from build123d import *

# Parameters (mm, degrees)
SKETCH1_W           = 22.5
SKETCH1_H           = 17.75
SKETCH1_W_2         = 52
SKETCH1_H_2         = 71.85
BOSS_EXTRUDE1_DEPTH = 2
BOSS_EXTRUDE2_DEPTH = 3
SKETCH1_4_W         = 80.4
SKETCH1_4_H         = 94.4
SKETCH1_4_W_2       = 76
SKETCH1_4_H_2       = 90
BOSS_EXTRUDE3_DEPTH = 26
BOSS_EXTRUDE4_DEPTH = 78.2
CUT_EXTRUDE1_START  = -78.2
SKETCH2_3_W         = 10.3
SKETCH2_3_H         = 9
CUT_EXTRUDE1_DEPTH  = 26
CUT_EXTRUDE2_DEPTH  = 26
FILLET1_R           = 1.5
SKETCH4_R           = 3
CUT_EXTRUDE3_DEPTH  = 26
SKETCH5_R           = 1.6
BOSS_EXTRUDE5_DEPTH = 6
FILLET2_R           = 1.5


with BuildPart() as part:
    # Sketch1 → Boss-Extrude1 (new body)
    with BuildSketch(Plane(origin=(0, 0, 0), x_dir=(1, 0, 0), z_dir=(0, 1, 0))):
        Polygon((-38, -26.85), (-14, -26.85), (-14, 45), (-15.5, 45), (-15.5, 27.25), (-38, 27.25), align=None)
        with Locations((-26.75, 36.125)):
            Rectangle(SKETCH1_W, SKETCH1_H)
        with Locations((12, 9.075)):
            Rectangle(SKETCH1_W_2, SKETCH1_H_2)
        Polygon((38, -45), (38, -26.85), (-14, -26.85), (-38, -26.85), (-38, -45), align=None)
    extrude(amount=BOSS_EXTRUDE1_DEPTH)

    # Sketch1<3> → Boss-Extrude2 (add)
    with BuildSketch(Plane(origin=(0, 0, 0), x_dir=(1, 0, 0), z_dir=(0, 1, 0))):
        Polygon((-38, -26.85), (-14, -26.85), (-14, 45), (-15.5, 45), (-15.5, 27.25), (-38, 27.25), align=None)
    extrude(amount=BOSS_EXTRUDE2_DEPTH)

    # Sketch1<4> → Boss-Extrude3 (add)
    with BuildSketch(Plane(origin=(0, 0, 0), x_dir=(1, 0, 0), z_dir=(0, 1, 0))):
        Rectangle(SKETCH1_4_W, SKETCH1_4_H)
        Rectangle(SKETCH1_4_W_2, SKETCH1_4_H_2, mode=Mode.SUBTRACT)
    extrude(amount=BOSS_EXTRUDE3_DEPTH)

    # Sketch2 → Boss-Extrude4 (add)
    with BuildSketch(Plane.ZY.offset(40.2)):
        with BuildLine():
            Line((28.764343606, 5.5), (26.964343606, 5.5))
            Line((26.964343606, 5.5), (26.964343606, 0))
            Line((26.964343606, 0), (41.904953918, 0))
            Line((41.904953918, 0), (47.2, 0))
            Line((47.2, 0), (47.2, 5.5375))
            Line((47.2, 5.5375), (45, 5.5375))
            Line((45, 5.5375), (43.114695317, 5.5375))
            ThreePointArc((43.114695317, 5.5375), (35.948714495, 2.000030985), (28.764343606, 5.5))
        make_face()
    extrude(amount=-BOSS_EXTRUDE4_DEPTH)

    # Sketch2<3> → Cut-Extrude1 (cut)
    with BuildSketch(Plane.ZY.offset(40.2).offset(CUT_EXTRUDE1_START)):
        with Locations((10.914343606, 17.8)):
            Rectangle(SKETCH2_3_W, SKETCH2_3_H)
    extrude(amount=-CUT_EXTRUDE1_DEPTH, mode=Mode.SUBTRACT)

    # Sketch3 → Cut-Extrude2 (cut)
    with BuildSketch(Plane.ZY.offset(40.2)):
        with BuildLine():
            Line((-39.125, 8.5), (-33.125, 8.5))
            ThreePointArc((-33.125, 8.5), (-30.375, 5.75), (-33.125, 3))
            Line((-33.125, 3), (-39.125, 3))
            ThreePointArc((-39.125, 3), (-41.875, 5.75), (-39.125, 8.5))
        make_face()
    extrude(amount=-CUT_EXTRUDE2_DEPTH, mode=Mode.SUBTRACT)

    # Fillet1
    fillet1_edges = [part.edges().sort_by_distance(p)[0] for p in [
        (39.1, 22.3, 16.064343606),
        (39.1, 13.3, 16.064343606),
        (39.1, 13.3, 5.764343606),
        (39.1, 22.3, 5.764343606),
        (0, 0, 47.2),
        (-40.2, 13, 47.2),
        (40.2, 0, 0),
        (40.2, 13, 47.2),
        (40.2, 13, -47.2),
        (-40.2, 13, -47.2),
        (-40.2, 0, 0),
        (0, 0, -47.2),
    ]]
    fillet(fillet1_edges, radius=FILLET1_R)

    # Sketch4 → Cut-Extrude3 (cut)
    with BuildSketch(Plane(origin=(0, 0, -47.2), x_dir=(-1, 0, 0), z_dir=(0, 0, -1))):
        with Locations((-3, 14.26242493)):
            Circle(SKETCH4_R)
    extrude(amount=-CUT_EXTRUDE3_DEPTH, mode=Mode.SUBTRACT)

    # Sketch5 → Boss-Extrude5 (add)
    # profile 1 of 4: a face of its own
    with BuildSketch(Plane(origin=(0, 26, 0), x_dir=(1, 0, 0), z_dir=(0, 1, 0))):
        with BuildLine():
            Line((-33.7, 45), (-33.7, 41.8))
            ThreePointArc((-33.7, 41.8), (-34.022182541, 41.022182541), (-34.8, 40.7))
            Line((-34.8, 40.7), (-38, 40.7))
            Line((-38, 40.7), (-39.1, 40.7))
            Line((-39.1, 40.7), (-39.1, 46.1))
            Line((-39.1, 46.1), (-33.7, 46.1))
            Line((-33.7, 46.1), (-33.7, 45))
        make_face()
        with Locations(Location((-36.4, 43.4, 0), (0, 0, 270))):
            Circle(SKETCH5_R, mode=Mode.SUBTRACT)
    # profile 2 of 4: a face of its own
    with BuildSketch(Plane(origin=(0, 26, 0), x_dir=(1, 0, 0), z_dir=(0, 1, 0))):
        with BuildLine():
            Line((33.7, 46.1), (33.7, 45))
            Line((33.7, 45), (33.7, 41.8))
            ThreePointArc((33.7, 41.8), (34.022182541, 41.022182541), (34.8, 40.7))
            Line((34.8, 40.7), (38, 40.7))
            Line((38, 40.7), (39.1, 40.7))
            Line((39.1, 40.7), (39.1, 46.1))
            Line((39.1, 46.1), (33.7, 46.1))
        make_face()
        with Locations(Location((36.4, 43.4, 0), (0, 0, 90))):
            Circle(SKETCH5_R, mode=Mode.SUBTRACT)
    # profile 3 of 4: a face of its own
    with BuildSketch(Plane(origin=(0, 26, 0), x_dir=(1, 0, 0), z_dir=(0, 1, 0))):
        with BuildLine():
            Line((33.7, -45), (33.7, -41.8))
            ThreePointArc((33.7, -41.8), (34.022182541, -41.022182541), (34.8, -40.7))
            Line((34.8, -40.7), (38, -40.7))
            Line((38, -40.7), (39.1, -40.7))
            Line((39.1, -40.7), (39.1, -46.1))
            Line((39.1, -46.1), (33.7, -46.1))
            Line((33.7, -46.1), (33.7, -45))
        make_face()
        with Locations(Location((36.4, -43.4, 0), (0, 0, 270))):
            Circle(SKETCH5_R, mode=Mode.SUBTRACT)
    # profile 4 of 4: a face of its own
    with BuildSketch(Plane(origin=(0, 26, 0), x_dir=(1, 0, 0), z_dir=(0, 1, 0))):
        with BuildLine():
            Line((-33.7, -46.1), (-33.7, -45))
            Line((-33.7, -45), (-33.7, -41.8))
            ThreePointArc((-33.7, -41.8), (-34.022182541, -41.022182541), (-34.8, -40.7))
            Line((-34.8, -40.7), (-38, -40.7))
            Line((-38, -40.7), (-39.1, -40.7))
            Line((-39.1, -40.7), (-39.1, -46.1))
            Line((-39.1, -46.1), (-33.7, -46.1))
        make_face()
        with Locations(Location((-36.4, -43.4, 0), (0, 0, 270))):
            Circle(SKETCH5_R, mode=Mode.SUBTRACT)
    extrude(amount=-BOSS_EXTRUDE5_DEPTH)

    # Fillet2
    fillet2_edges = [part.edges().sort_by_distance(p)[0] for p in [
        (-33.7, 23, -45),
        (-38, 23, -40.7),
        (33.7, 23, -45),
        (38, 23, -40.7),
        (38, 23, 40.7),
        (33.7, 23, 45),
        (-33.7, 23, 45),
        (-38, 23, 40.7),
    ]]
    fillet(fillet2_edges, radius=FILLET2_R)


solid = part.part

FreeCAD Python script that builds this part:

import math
import FreeCAD as App
import Part
import Sketcher
Q = App.Units.Quantity


def edges_at(feature, points):
    """Names of the edges that pass closest to the given points."""
    edges = feature.Shape.Edges
    near = lambda p: min(range(len(edges)), key=lambda i: edges[i].distToShape(Part.Vertex(*p))[0])
    return sorted({f"Edge{near(p) + 1}" for p in points})

doc = App.newDocument("Part")
body = doc.addObject("PartDesign::Body", "Body")

sketch1 = body.newObject("Sketcher::SketchObject", "Sketch")
sketch1.AttachmentSupport = (doc.getObject("XZ_Plane"), [""])
sketch1.MapMode = "FlatFace"
sketch1.addGeometry(Part.LineSegment(App.Vector(38, -45, 0), App.Vector(-38, -45, 0)), False)
sketch1.addGeometry(Part.LineSegment(App.Vector(-38, -45, 0), App.Vector(-38, 45, 0)), False)
sketch1.addGeometry(Part.LineSegment(App.Vector(-38, 45, 0), App.Vector(38, 45, 0)), False)
sketch1.addGeometry(Part.LineSegment(App.Vector(38, 45, 0), App.Vector(38, -45, 0)), False)
sketch1.addConstraint(Sketcher.Constraint("Coincident", 0, 2, 1, 1))
sketch1.addConstraint(Sketcher.Constraint("Coincident", 1, 2, 2, 1))
sketch1.addConstraint(Sketcher.Constraint("Coincident", 2, 2, 3, 1))
sketch1.addConstraint(Sketcher.Constraint("Coincident", 3, 2, 0, 1))
sketch1.addConstraint(Sketcher.Constraint("Horizontal", 0))
sketch1.addConstraint(Sketcher.Constraint("Vertical", 1))
sketch1.addConstraint(Sketcher.Constraint("Horizontal", 2))
sketch1.addConstraint(Sketcher.Constraint("Vertical", 3))
sketch1.addConstraint(Sketcher.Constraint("Symmetric", 0, 2, 2, 2, -1, 1))
sketch1.addConstraint(Sketcher.Constraint("DistanceX", 0, 2, 0, 1, Q("76 mm")))
sketch1.addConstraint(Sketcher.Constraint("DistanceY", 1, 1, 1, 2, Q("90 mm")))
pad1 = body.newObject("PartDesign::Pad", "Pad")
pad1.Profile = sketch1
pad1.Length = 2
pad1.Reversed = True

sketch2 = body.newObject("Sketcher::SketchObject", "Sketch001")
sketch2.AttachmentSupport = (doc.getObject("XZ_Plane"), [""])
sketch2.MapMode = "FlatFace"
sketch2.addGeometry(Part.LineSegment(App.Vector(-38, 26.9, 0), App.Vector(-14, 26.9, 0)), False)
sketch2.addGeometry(Part.LineSegment(App.Vector(-14, 26.9, 0), App.Vector(-14, -45, 0)), False)
sketch2.addGeometry(Part.LineSegment(App.Vector(-14, -45, 0), App.Vector(-15.5, -45, 0)), False)
sketch2.addGeometry(Part.LineSegment(App.Vector(-15.5, -45, 0), App.Vector(-15.5, -27.2, 0)), False)
sketch2.addGeometry(Part.LineSegment(App.Vector(-15.5, -27.2, 0), App.Vector(-38, -27.2, 0)), False)
sketch2.addGeometry(Part.LineSegment(App.Vector(-38, -27.2, 0), App.Vector(-38, 26.9, 0)), False)
sketch2.addConstraint(Sketcher.Constraint("Coincident", 0, 2, 1, 1))
sketch2.addConstraint(Sketcher.Constraint("Coincident", 1, 2, 2, 1))
sketch2.addConstraint(Sketcher.Constraint("Coincident", 2, 2, 3, 1))
sketch2.addConstraint(Sketcher.Constraint("Coincident", 3, 2, 4, 1))
sketch2.addConstraint(Sketcher.Constraint("Coincident", 4, 2, 5, 1))
sketch2.addConstraint(Sketcher.Constraint("Coincident", 5, 2, 0, 1))
sketch2.addConstraint(Sketcher.Constraint("Horizontal", 0))
sketch2.addConstraint(Sketcher.Constraint("Vertical", 1))
sketch2.addConstraint(Sketcher.Constraint("Horizontal", 2))
sketch2.addConstraint(Sketcher.Constraint("Vertical", 3))
sketch2.addConstraint(Sketcher.Constraint("Horizontal", 4))
sketch2.addConstraint(Sketcher.Constraint("Vertical", 5))
sketch2.addConstraint(Sketcher.Constraint("DistanceX", 0, 1, 0, 2, Q("24 mm")))
sketch2.addConstraint(Sketcher.Constraint("DistanceX", 2, 2, 2, 1, Q("1.5 mm")))
sketch2.addConstraint(Sketcher.Constraint("DistanceY", 5, 1, 5, 2, Q("54.1 mm")))
sketch2.addConstraint(Sketcher.Constraint("DistanceX", 0, 2, -1, 1, Q("14 mm")))
sketch2.addConstraint(Sketcher.Constraint("DistanceY", 1, 2, -1, 1, Q("45 mm")))
sketch2.addConstraint(Sketcher.Constraint("DistanceY", 1, 2, 1, 1, Q("71.85 mm")))
pad2 = body.newObject("PartDesign::Pad", "Pad001")
pad2.Profile = sketch2
pad2.Length = 3
pad2.Reversed = True

sketch3 = body.newObject("Sketcher::SketchObject", "Sketch002")
sketch3.AttachmentSupport = (doc.getObject("XZ_Plane"), [""])
sketch3.MapMode = "FlatFace"
sketch3.addGeometry(Part.LineSegment(App.Vector(-40, -47, 0), App.Vector(-40, 47, 0)), False)
sketch3.addGeometry(Part.LineSegment(App.Vector(-40, 47, 0), App.Vector(40, 47, 0)), False)
sketch3.addGeometry(Part.LineSegment(App.Vector(40, 47, 0), App.Vector(40, -47, 0)), False)
sketch3.addGeometry(Part.LineSegment(App.Vector(40, -47, 0), App.Vector(-40, -47, 0)), False)
sketch3.addGeometry(Part.LineSegment(App.Vector(38, 45, 0), App.Vector(-38, 45, 0)), False)
sketch3.addGeometry(Part.LineSegment(App.Vector(-38, 45, 0), App.Vector(-38, -45, 0)), False)
sketch3.addGeometry(Part.LineSegment(App.Vector(-38, -45, 0), App.Vector(38, -45, 0)), False)
sketch3.addGeometry(Part.LineSegment(App.Vector(38, -45, 0), App.Vector(38, 45, 0)), False)
sketch3.addConstraint(Sketcher.Constraint("Coincident", 0, 2, 1, 1))
sketch3.addConstraint(Sketcher.Constraint("Coincident", 1, 2, 2, 1))
sketch3.addConstraint(Sketcher.Constraint("Coincident", 2, 2, 3, 1))
sketch3.addConstraint(Sketcher.Constraint("Coincident", 3, 2, 0, 1))
sketch3.addConstraint(Sketcher.Constraint("Coincident", 4, 2, 5, 1))
sketch3.addConstraint(Sketcher.Constraint("Coincident", 5, 2, 6, 1))
sketch3.addConstraint(Sketcher.Constraint("Coincident", 6, 2, 7, 1))
sketch3.addConstraint(Sketcher.Constraint("Coincident", 7, 2, 4, 1))
sketch3.addConstraint(Sketcher.Constraint("Vertical", 0))
sketch3.addConstraint(Sketcher.Constraint("Horizontal", 1))
sketch3.addConstraint(Sketcher.Constraint("Vertical", 2))
sketch3.addConstraint(Sketcher.Constraint("Horizontal", 3))
sketch3.addConstraint(Sketcher.Constraint("Horizontal", 4))
sketch3.addConstraint(Sketcher.Constraint("Vertical", 5))
sketch3.addConstraint(Sketcher.Constraint("Horizontal", 6))
sketch3.addConstraint(Sketcher.Constraint("Vertical", 7))
sketch3.addConstraint(Sketcher.Constraint("Symmetric", 0, 2, 2, 2, -1, 1))
sketch3.addConstraint(Sketcher.Constraint("Symmetric", 4, 2, 6, 2, -1, 1))
sketch3.addConstraint(Sketcher.Constraint("DistanceX", 4, 2, 4, 1, Q("76 mm")))
sketch3.addConstraint(Sketcher.Constraint("DistanceY", 5, 2, 5, 1, Q("90 mm")))
sketch3.addConstraint(Sketcher.Constraint("DistanceX", 1, 1, 1, 2, Q("80.4 mm")))
sketch3.addConstraint(Sketcher.Constraint("DistanceY", 0, 1, 0, 2, Q("94.4 mm")))
pad3 = body.newObject("PartDesign::Pad", "Pad002")
pad3.Profile = sketch3
pad3.Length = 26
pad3.Reversed = True

sketch4 = body.newObject("Sketcher::SketchObject", "Sketch003")
sketch4.AttachmentSupport = (doc.getObject("YZ_Plane"), [""])
sketch4.MapMode = "FlatFace"
sketch4.AttachmentOffset = App.Placement(App.Vector(0, 0, -40.2), App.Rotation())
sketch4.addGeometry(Part.LineSegment(App.Vector(5.5, 28.8, 0), App.Vector(5.5, 27, 0)), False)
sketch4.addGeometry(Part.LineSegment(App.Vector(5.5, 27, 0), App.Vector(0, 27, 0)), False)
sketch4.addGeometry(Part.LineSegment(App.Vector(0, 27, 0), App.Vector(0, 47.2, 0)), False)
sketch4.addGeometry(Part.LineSegment(App.Vector(0, 47.2, 0), App.Vector(5.5, 47.2, 0)), False)
sketch4.addGeometry(Part.LineSegment(App.Vector(5.5, 47.2, 0), App.Vector(5.5, 43.1, 0)), False)
sketch4.addGeometry(Part.ArcOfCircle(Part.Circle(App.Vector(11.1, 35.9, 0), App.Vector(0, 0, 1), 9.1), math.radians(128), math.radians(232)), False)
sketch4.addConstraint(Sketcher.Constraint("Coincident", 0, 2, 1, 1))
sketch4.addConstraint(Sketcher.Constraint("Coincident", 1, 2, 2, 1))
sketch4.addConstraint(Sketcher.Constraint("Coincident", 2, 2, 3, 1))
sketch4.addConstraint(Sketcher.Constraint("Coincident", 3, 2, 4, 1))
sketch4.addConstraint(Sketcher.Constraint("Coincident", 4, 2, 5, 1))
sketch4.addConstraint(Sketcher.Constraint("Coincident", 5, 2, 0, 1))
sketch4.addConstraint(Sketcher.Constraint("Vertical", 0))
sketch4.addConstraint(Sketcher.Constraint("Horizontal", 1))
sketch4.addConstraint(Sketcher.Constraint("Vertical", 2))
sketch4.addConstraint(Sketcher.Constraint("Horizontal", 3))
sketch4.addConstraint(Sketcher.Constraint("Vertical", 4))
sketch4.addConstraint(Sketcher.Constraint("PointOnObject", 1, 2, -2))
sketch4.addConstraint(Sketcher.Constraint("DistanceX", 1, 2, 1, 1, Q("5.5 mm")))
sketch4.addConstraint(Sketcher.Constraint("DistanceY", 0, 2, 0, 1, Q("1.8 mm")))
sketch4.addConstraint(Sketcher.Constraint("Radius", 5, Q("9.075 mm")))
sketch4.addConstraint(Sketcher.Constraint("DistanceY", -1, 1, 2, 2, Q("47.2 mm")))
sketch4.addConstraint(Sketcher.Constraint("DistanceX", 3, 1, 3, 2, Q("5.5375 mm")))
sketch4.addConstraint(Sketcher.Constraint("DistanceX", -1, 1, 5, 3, Q("11.075 mm")))
sketch4.addConstraint(Sketcher.Constraint("DistanceY", -1, 1, 5, 3, Q("35.925 mm")))
pad4 = body.newObject("PartDesign::Pad", "Pad003")
pad4.Profile = sketch4
pad4.Length = 78.2

sketch5 = body.newObject("Sketcher::SketchObject", "Sketch004")
sketch5.AttachmentSupport = (doc.getObject("YZ_Plane"), [""])
sketch5.MapMode = "FlatFace"
sketch5.AttachmentOffset = App.Placement(App.Vector(0, 0, 38), App.Rotation())
sketch5.addGeometry(Part.LineSegment(App.Vector(22, 6, 0), App.Vector(13, 6, 0)), False)
sketch5.addGeometry(Part.LineSegment(App.Vector(13, 6, 0), App.Vector(13, 16, 0)), False)
sketch5.addGeometry(Part.LineSegment(App.Vector(13, 16, 0), App.Vector(22, 16, 0)), False)
sketch5.addGeometry(Part.LineSegment(App.Vector(22, 16, 0), App.Vector(22, 6, 0)), False)
sketch5.addConstraint(Sketcher.Constraint("Coincident", 0, 2, 1, 1))
sketch5.addConstraint(Sketcher.Constraint("Coincident", 1, 2, 2, 1))
sketch5.addConstraint(Sketcher.Constraint("Coincident", 2, 2, 3, 1))
sketch5.addConstraint(Sketcher.Constraint("Coincident", 3, 2, 0, 1))
sketch5.addConstraint(Sketcher.Constraint("Horizontal", 0))
sketch5.addConstraint(Sketcher.Constraint("Vertical", 1))
sketch5.addConstraint(Sketcher.Constraint("Horizontal", 2))
sketch5.addConstraint(Sketcher.Constraint("Vertical", 3))
sketch5.addConstraint(Sketcher.Constraint("DistanceX", 0, 2, 0, 1, Q("9 mm")))
sketch5.addConstraint(Sketcher.Constraint("DistanceY", 1, 1, 1, 2, Q("10.3 mm")))
sketch5.addConstraint(Sketcher.Constraint("DistanceX", -1, 1, 0, 2, Q("13.3 mm")))
sketch5.addConstraint(Sketcher.Constraint("DistanceY", -1, 1, 0, 2, Q("5.764344 mm")))
pocket1 = body.newObject("PartDesign::Pocket", "Pocket")
pocket1.Profile = sketch5
pocket1.Length = 26
pocket1.Reversed = True

sketch6 = body.newObject("Sketcher::SketchObject", "Sketch005")
sketch6.AttachmentSupport = (doc.getObject("YZ_Plane"), [""])
sketch6.MapMode = "FlatFace"
sketch6.AttachmentOffset = App.Placement(App.Vector(0, 0, -40.2), App.Rotation())
sketch6.addGeometry(Part.LineSegment(App.Vector(8.5, -33.1, 0), App.Vector(8.5, -39.1, 0)), False)
sketch6.addGeometry(Part.ArcOfCircle(Part.Circle(App.Vector(5.8, -39.1, 0), App.Vector(0, 0, 1), 2.8), math.radians(180), math.radians(360)), False)
sketch6.addGeometry(Part.LineSegment(App.Vector(3, -39.1, 0), App.Vector(3, -33.1, 0)), False)
sketch6.addGeometry(Part.ArcOfCircle(Part.Circle(App.Vector(5.8, -33.1, 0), App.Vector(0, 0, 1), 2.8), math.radians(0), math.radians(180)), False)
sketch6.addConstraint(Sketcher.Constraint("Tangent", 0, 2, 1, 2))
sketch6.addConstraint(Sketcher.Constraint("Tangent", 1, 1, 2, 1))
sketch6.addConstraint(Sketcher.Constraint("Tangent", 2, 2, 3, 2))
sketch6.addConstraint(Sketcher.Constraint("Tangent", 3, 1, 0, 1))
sketch6.addConstraint(Sketcher.Constraint("Vertical", 0))
sketch6.addConstraint(Sketcher.Constraint("Vertical", 2))
sketch6.addConstraint(Sketcher.Constraint("DistanceY", 0, 2, 0, 1, Q("6 mm")))
sketch6.addConstraint(Sketcher.Constraint("Radius", 1, Q("2.75 mm")))
sketch6.addConstraint(Sketcher.Constraint("DistanceX", -1, 1, 1, 1, Q("3 mm")))
sketch6.addConstraint(Sketcher.Constraint("DistanceY", 1, 3, -1, 1, Q("39.125 mm")))
pocket2 = body.newObject("PartDesign::Pocket", "Pocket001")
pocket2.Profile = sketch6
pocket2.Length = 26
pocket2.Reversed = True
doc.recompute()

fillet = body.newObject("PartDesign::Fillet", "Fillet")
fillet.Base = (pocket2, edges_at(pocket2, [
    (39.1, 22.3, 16.064),
    (39.1, 13.3, 16.064),
    (39.1, 13.3, 5.764),
    (39.1, 22.3, 5.764),
    (0, 0, 47.2),
    (-40.2, 13, 47.2),
    (40.2, 0, 0),
    (40.2, 13, 47.2),
    (40.2, 13, -47.2),
    (-40.2, 13, -47.2),
    (-40.2, 0, 0),
    (0, 0, -47.2),
]))
fillet.Radius = 1.5

sketch7 = body.newObject("Sketcher::SketchObject", "Sketch006")
sketch7.AttachmentSupport = (doc.getObject("XY_Plane"), [""])
sketch7.MapMode = "FlatFace"
sketch7.AttachmentOffset = App.Placement(App.Vector(0, 0, -47.2), App.Rotation())
sketch7.addGeometry(Part.Circle(App.Vector(3, 14.3, 0), App.Vector(0, 0, 1), 3), False)
sketch7.addConstraint(Sketcher.Constraint("Diameter", 0, Q("6 mm")))
sketch7.addConstraint(Sketcher.Constraint("DistanceX", -1, 1, 0, 3, Q("3 mm")))
sketch7.addConstraint(Sketcher.Constraint("DistanceY", -1, 1, 0, 3, Q("14.262425 mm")))
pocket3 = body.newObject("PartDesign::Pocket", "Pocket002")
pocket3.Profile = sketch7
pocket3.Length = 26
pocket3.Reversed = True

sketch8 = body.newObject("Sketcher::SketchObject", "Sketch007")
sketch8.AttachmentSupport = (doc.getObject("XZ_Plane"), [""])
sketch8.MapMode = "FlatFace"
sketch8.AttachmentOffset = App.Placement(App.Vector(0, 0, -26), App.Rotation())
sketch8.addGeometry(Part.ArcOfCircle(Part.Circle(App.Vector(-34.8, -41.8, 0), App.Vector(0, 0, 1), 1.1), math.radians(0), math.radians(90)), False)
sketch8.addGeometry(Part.LineSegment(App.Vector(-33.7, -41.8, 0), App.Vector(-33.7, -46.1, 0)), False)
sketch8.addGeometry(Part.LineSegment(App.Vector(-33.7, -46.1, 0), App.Vector(-39.1, -46.1, 0)), False)
sketch8.addGeometry(Part.LineSegment(App.Vector(-39.1, -46.1, 0), App.Vector(-39.1, -40.7, 0)), False)
sketch8.addGeometry(Part.LineSegment(App.Vector(-39.1, -40.7, 0), App.Vector(-34.8, -40.7, 0)), False)
sketch8.addGeometry(Part.Circle(App.Vector(-36.4, -43.4, 0), App.Vector(0, 0, 1), 1.6), False)
sketch8.addGeometry(Part.LineSegment(App.Vector(33.7, -46.1, 0), App.Vector(33.7, -41.8, 0)), False)
sketch8.addGeometry(Part.ArcOfCircle(Part.Circle(App.Vector(34.8, -41.8, 0), App.Vector(0, 0, 1), 1.1), math.radians(90), math.radians(180)), False)
sketch8.addGeometry(Part.LineSegment(App.Vector(34.8, -40.7, 0), App.Vector(39.1, -40.7, 0)), False)
sketch8.addGeometry(Part.LineSegment(App.Vector(39.1, -40.7, 0), App.Vector(39.1, -46.1, 0)), False)
sketch8.addGeometry(Part.LineSegment(App.Vector(39.1, -46.1, 0), App.Vector(33.7, -46.1, 0)), False)
sketch8.addGeometry(Part.Circle(App.Vector(36.4, -43.4, 0), App.Vector(0, 0, 1), 1.6), False)
sketch8.addGeometry(Part.ArcOfCircle(Part.Circle(App.Vector(34.8, 41.8, 0), App.Vector(0, 0, 1), 1.1), math.radians(-180), math.radians(-90)), False)
sketch8.addGeometry(Part.LineSegment(App.Vector(33.7, 41.8, 0), App.Vector(33.7, 46.1, 0)), False)
sketch8.addGeometry(Part.LineSegment(App.Vector(33.7, 46.1, 0), App.Vector(39.1, 46.1, 0)), False)
sketch8.addGeometry(Part.LineSegment(App.Vector(39.1, 46.1, 0), App.Vector(39.1, 40.7, 0)), False)
sketch8.addGeometry(Part.LineSegment(App.Vector(39.1, 40.7, 0), App.Vector(34.8, 40.7, 0)), False)
sketch8.addGeometry(Part.Circle(App.Vector(36.4, 43.4, 0), App.Vector(0, 0, 1), 1.6), False)
sketch8.addGeometry(Part.LineSegment(App.Vector(-33.7, 46.1, 0), App.Vector(-33.7, 41.8, 0)), False)
sketch8.addGeometry(Part.ArcOfCircle(Part.Circle(App.Vector(-34.8, 41.8, 0), App.Vector(0, 0, 1), 1.1), math.radians(-90), math.radians(0)), False)
sketch8.addGeometry(Part.LineSegment(App.Vector(-34.8, 40.7, 0), App.Vector(-39.1, 40.7, 0)), False)
sketch8.addGeometry(Part.LineSegment(App.Vector(-39.1, 40.7, 0), App.Vector(-39.1, 46.1, 0)), False)
sketch8.addGeometry(Part.LineSegment(App.Vector(-39.1, 46.1, 0), App.Vector(-33.7, 46.1, 0)), False)
sketch8.addGeometry(Part.Circle(App.Vector(-36.4, 43.4, 0), App.Vector(0, 0, 1), 1.6), False)
sketch8.addConstraint(Sketcher.Constraint("Tangent", 0, 1, 1, 1))
sketch8.addConstraint(Sketcher.Constraint("Coincident", 1, 2, 2, 1))
sketch8.addConstraint(Sketcher.Constraint("Coincident", 2, 2, 3, 1))
sketch8.addConstraint(Sketcher.Constraint("Coincident", 3, 2, 4, 1))
sketch8.addConstraint(Sketcher.Constraint("Tangent", 4, 2, 0, 2))
sketch8.addConstraint(Sketcher.Constraint("Tangent", 6, 2, 7, 2))
sketch8.addConstraint(Sketcher.Constraint("Tangent", 7, 1, 8, 1))
sketch8.addConstraint(Sketcher.Constraint("Coincident", 8, 2, 9, 1))
sketch8.addConstraint(Sketcher.Constraint("Coincident", 9, 2, 10, 1))
sketch8.addConstraint(Sketcher.Constraint("Coincident", 10, 2, 6, 1))
sketch8.addConstraint(Sketcher.Constraint("Tangent", 12, 1, 13, 1))
sketch8.addConstraint(Sketcher.Constraint("Coincident", 13, 2, 14, 1))
sketch8.addConstraint(Sketcher.Constraint("Coincident", 14, 2, 15, 1))
sketch8.addConstraint(Sketcher.Constraint("Coincident", 15, 2, 16, 1))
sketch8.addConstraint(Sketcher.Constraint("Tangent", 16, 2, 12, 2))
sketch8.addConstraint(Sketcher.Constraint("Tangent", 18, 2, 19, 2))
sketch8.addConstraint(Sketcher.Constraint("Tangent", 19, 1, 20, 1))
sketch8.addConstraint(Sketcher.Constraint("Coincident", 20, 2, 21, 1))
sketch8.addConstraint(Sketcher.Constraint("Coincident", 21, 2, 22, 1))
sketch8.addConstraint(Sketcher.Constraint("Coincident", 22, 2, 18, 1))
sketch8.addConstraint(Sketcher.Constraint("Vertical", 1))
sketch8.addConstraint(Sketcher.Constraint("Horizontal", 2))
sketch8.addConstraint(Sketcher.Constraint("Vertical", 3))
sketch8.addConstraint(Sketcher.Constraint("Horizontal", 4))
sketch8.addConstraint(Sketcher.Constraint("Vertical", 6))
sketch8.addConstraint(Sketcher.Constraint("Horizontal", 8))
sketch8.addConstraint(Sketcher.Constraint("Vertical", 9))
sketch8.addConstraint(Sketcher.Constraint("Horizontal", 10))
sketch8.addConstraint(Sketcher.Constraint("Vertical", 13))
sketch8.addConstraint(Sketcher.Constraint("Horizontal", 14))
sketch8.addConstraint(Sketcher.Constraint("Vertical", 15))
sketch8.addConstraint(Sketcher.Constraint("Horizontal", 16))
sketch8.addConstraint(Sketcher.Constraint("Vertical", 18))
sketch8.addConstraint(Sketcher.Constraint("Horizontal", 20))
sketch8.addConstraint(Sketcher.Constraint("Vertical", 21))
sketch8.addConstraint(Sketcher.Constraint("Horizontal", 22))
sketch8.addConstraint(Sketcher.Constraint("Equal", 0, 7))
sketch8.addConstraint(Sketcher.Constraint("Equal", 5, 11))
sketch8.addConstraint(Sketcher.Constraint("Equal", 7, 12))
sketch8.addConstraint(Sketcher.Constraint("Equal", 11, 17))
sketch8.addConstraint(Sketcher.Constraint("Equal", 12, 19))
sketch8.addConstraint(Sketcher.Constraint("Equal", 17, 23))
sketch8.addConstraint(Sketcher.Constraint("Symmetric", 0, 3, 12, 3, -1, 1))
sketch8.addConstraint(Sketcher.Constraint("Symmetric", 5, 3, 17, 3, -1, 1))
sketch8.addConstraint(Sketcher.Constraint("Symmetric", 7, 3, 19, 3, -1, 1))
sketch8.addConstraint(Sketcher.Constraint("Symmetric", 11, 3, 23, 3, -1, 1))
sketch8.addConstraint(Sketcher.Constraint("Symmetric", 2, 2, 14, 2, -1, 1))
sketch8.addConstraint(Sketcher.Constraint("Symmetric", 9, 2, 21, 2, -1, 1))
sketch8.addConstraint(Sketcher.Constraint("Symmetric", 0, 3, 7, 3, -2))
sketch8.addConstraint(Sketcher.Constraint("Symmetric", 5, 3, 11, 3, -2))
sketch8.addConstraint(Sketcher.Constraint("Symmetric", 2, 2, 9, 2, -2))
sketch8.addConstraint(Sketcher.Constraint("Equal", 20, 1))
sketch8.addConstraint(Sketcher.Constraint("Diameter", 5, Q("3.2 mm")))
sketch8.addConstraint(Sketcher.Constraint("Radius", 0, Q("1.1 mm")))
sketch8.addConstraint(Sketcher.Constraint("DistanceX", 2, 2, 2, 1, Q("5.4 mm")))
sketch8.addConstraint(Sketcher.Constraint("DistanceX", 0, 3, -1, 1, Q("34.8 mm")))
sketch8.addConstraint(Sketcher.Constraint("DistanceY", 0, 3, -1, 1, Q("41.8 mm")))
sketch8.addConstraint(Sketcher.Constraint("DistanceX", 5, 3, -1, 1, Q("36.4 mm")))
sketch8.addConstraint(Sketcher.Constraint("DistanceY", 5, 3, -1, 1, Q("43.4 mm")))
pad5 = body.newObject("PartDesign::Pad", "Pad004")
pad5.Profile = sketch8
pad5.Length = 6
doc.recompute()

fillet2 = body.newObject("PartDesign::Fillet", "Fillet001")
fillet2.Base = (pad5, edges_at(pad5, [
    (-33.7, 23, -45),
    (-38, 23, -40.7),
    (33.7, 23, -45),
    (38, 23, -40.7),
    (38, 23, 40.7),
    (33.7, 23, 45),
    (-33.7, 23, 45),
    (-38, 23, 40.7),
]))
fillet2.Radius = 1.5

doc.recompute()
